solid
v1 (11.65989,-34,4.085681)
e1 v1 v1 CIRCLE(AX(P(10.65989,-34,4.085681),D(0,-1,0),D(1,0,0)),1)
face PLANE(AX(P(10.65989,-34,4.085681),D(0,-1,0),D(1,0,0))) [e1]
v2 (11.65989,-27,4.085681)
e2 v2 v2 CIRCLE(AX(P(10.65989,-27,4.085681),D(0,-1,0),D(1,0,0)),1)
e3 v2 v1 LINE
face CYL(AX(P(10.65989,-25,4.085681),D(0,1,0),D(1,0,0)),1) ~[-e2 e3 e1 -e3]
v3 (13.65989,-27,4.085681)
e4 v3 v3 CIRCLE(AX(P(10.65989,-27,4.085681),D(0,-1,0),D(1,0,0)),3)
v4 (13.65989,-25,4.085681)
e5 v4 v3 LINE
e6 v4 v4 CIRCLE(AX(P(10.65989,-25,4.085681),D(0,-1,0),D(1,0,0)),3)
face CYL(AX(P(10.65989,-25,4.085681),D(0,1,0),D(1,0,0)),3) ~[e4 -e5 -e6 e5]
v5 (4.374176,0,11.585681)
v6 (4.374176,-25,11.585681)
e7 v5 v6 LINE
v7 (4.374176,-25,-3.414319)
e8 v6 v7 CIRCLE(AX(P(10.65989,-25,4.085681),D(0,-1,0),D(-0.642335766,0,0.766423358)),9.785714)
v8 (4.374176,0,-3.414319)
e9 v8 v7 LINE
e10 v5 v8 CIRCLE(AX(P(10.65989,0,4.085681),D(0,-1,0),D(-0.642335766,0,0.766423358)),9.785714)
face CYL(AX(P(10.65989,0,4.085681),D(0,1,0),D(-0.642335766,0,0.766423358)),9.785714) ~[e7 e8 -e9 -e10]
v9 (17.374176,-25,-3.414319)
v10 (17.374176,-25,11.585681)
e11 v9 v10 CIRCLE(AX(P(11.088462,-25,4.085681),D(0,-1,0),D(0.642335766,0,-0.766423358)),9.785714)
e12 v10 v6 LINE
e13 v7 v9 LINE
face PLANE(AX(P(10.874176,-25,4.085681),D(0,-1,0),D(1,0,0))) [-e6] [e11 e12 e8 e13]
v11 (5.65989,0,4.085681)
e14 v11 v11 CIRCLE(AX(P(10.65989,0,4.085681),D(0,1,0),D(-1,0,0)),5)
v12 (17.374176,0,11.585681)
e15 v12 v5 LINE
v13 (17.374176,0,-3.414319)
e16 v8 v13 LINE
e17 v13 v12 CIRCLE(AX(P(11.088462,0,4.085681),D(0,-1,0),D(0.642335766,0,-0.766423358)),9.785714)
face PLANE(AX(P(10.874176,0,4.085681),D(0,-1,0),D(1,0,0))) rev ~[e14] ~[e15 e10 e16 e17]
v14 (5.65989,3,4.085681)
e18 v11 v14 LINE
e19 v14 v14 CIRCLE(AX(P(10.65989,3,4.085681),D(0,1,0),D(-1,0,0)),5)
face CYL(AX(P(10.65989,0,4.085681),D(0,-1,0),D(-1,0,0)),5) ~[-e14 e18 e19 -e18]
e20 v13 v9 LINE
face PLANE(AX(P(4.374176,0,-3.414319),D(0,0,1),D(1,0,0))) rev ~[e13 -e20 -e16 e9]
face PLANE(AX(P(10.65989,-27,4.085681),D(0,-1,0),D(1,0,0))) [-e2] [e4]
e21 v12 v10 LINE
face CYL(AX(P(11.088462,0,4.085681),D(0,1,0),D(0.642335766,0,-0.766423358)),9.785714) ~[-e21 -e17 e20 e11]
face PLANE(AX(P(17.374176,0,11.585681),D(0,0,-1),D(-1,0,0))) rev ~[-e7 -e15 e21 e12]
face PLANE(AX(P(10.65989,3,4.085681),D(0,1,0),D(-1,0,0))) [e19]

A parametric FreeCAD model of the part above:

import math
import FreeCAD as App
import Part
import Sketcher
Q = App.Units.Quantity

doc = App.newDocument("Part")
body = doc.addObject("PartDesign::Body", "Body")

# Sketch on XZ plane
sketch1 = body.newObject("Sketcher::SketchObject", "Sketch")
sketch1.AttachmentSupport = (doc.getObject("XZ_Plane"), [""])
sketch1.MapMode = "FlatFace"
sketch1.addGeometry([
    Part.LineSegment(App.Vector(17, 12, 0), App.Vector(4, 12, 0)),
    Part.ArcOfCircle(Part.Circle(App.Vector(11, 4, 0), App.Vector(0, 0, 1), 10), math.radians(130), math.radians(230)),
    Part.LineSegment(App.Vector(4, -3, 0), App.Vector(17, -3, 0)),
    Part.ArcOfCircle(Part.Circle(App.Vector(11, 4, 0), App.Vector(0, 0, 1), 10), math.radians(-50), math.radians(50)),
], False)
sketch1.addConstraint([
    Sketcher.Constraint("Coincident", 0, 2, 1, 1),
    Sketcher.Constraint("Coincident", 1, 2, 2, 1),
    Sketcher.Constraint("Coincident", 2, 2, 3, 1),
    Sketcher.Constraint("Coincident", 3, 2, 0, 1),
    Sketcher.Constraint("Horizontal", 0),
    Sketcher.Constraint("Horizontal", 2),
    Sketcher.Constraint("Equal", 1, 3),
    Sketcher.Constraint("Horizontal", 1, 3, 3, 3),
    Sketcher.Constraint("Vertical", 0, 2, 1, 2),
    Sketcher.Constraint("DistanceX", 0, 2, 0, 1, Q("13 mm")),
    Sketcher.Constraint("DistanceY", 1, 2, 0, 2, Q("15 mm")),
    Sketcher.Constraint("Radius", 1, Q("9.785714 mm")),
    Sketcher.Constraint("DistanceX", -1, 1, 1, 3, Q("10.65989 mm")),
    Sketcher.Constraint("DistanceY", -1, 1, 1, 3, Q("4.085681 mm")),
])
pad1 = body.newObject("PartDesign::Pad", "Pad")
pad1.Profile = sketch1
pad1.Length = 25

# Sketch on XZ plane
sketch2 = body.newObject("Sketcher::SketchObject", "Sketch001")
sketch2.AttachmentSupport = (doc.getObject("XZ_Plane"), [""])
sketch2.MapMode = "FlatFace"
sketch2.AttachmentOffset = App.Placement(App.Vector(0, 0, 25), App.Rotation())
sketch2.addGeometry([
    Part.Circle(App.Vector(10.7, 4.1, 0), App.Vector(0, 0, 1), 3),
    Part.Circle(App.Vector(10.7, 4.1, 0), App.Vector(0, 0, 1), 1),
], False)
sketch2.addConstraint([
    Sketcher.Constraint("Coincident", 1, 3, 0, 3),
    Sketcher.Constraint("Diameter", 0, Q("6 mm")),
    Sketcher.Constraint("Diameter", 1, Q("2 mm")),
    Sketcher.Constraint("DistanceX", -1, 1, 0, 3, Q("10.65989 mm")),
    Sketcher.Constraint("DistanceY", -1, 1, 0, 3, Q("4.085681 mm")),
])
pad2 = body.newObject("PartDesign::Pad", "Pad001")
pad2.Profile = sketch2
pad2.Length = 2

# Sketch on XZ plane
sketch3 = body.newObject("Sketcher::SketchObject", "Sketch002")
sketch3.AttachmentSupport = (doc.getObject("XZ_Plane"), [""])
sketch3.MapMode = "FlatFace"
sketch3.AttachmentOffset = App.Placement(App.Vector(0, 0, 25), App.Rotation())
sketch3.addGeometry(Part.Circle(App.Vector(10.7, 4.1, 0), App.Vector(0, 0, 1), 1), False)
sketch3.addConstraint([
    Sketcher.Constraint("Diameter", 0, Q("2 mm")),
    Sketcher.Constraint("DistanceX", -1, 1, 0, 3, Q("10.65989 mm")),
    Sketcher.Constraint("DistanceY", -1, 1, 0, 3, Q("4.085681 mm")),
])
pad3 = body.newObject("PartDesign::Pad", "Pad002")
pad3.Profile = sketch3
pad3.Length = 9

# Sketch on XZ plane
sketch4 = body.newObject("Sketcher::SketchObject", "Sketch003")
sketch4.AttachmentSupport = (doc.getObject("XZ_Plane"), [""])
sketch4.MapMode = "FlatFace"
sketch4.addGeometry(Part.Circle(App.Vector(11, 4, 0), App.Vector(0, 0, 1), 5), False)
sketch4.addConstraint([
    Sketcher.Constraint("Diameter", 0, Q("10 mm")),
    Sketcher.Constraint("DistanceX", -1, 1, 0, 3, Q("10.65989 mm")),
    Sketcher.Constraint("DistanceY", -1, 1, 0, 3, Q("4.085681 mm")),
])
pad4 = body.newObject("PartDesign::Pad", "Pad003")
pad4.Profile = sketch4
pad4.Length = 3
pad4.Reversed = True

doc.recompute()
